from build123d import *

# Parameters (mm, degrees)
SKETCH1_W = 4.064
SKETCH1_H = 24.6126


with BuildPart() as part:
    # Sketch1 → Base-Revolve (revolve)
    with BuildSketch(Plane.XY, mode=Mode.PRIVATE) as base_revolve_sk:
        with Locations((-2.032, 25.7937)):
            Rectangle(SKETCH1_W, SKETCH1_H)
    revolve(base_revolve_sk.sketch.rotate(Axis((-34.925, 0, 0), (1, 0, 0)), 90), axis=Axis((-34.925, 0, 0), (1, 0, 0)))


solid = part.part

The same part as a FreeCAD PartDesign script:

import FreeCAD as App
import Part
import Sketcher
from FreeCAD import Vector
Q = App.Units.Quantity


def add_polygon(sketch, points):
    """Adds a closed chain of lines whose ends are joined by coincident constraints."""
    first, n = sketch.GeometryCount, len(points)
    for a, b in zip(points, points[1:] + points[:1]):
        sketch.addGeometry(Part.LineSegment(App.Vector(*a, 0), App.Vector(*b, 0)), False)
    for i in range(n):
        sketch.addConstraint(Sketcher.Constraint("Coincident", first + i, 2, first + (i + 1) % n, 1))

doc = App.newDocument("Part")
body = doc.addObject("PartDesign::Body", "Body")

sketch1 = body.newObject("Sketcher::SketchObject", "Sketch")
sketch1.AttachmentSupport = (doc.getObject("XY_Plane"), [""])
sketch1.MapMode = "FlatFace"
add_polygon(sketch1, [(-4.064, 38.1), (-4.064, 13.4874), (0, 13.4874), (0, 38.1)])
sketch1.addConstraint([
    Sketcher.Constraint("Vertical", 0),
    Sketcher.Constraint("Horizontal", 1),
    Sketcher.Constraint("Vertical", 2),
    Sketcher.Constraint("Horizontal", 3),
    Sketcher.Constraint("PointOnObject", 1, 2, -2),
    Sketcher.Constraint("DistanceX", 1, 1, 1, 2, Q("0.16 in")),
    Sketcher.Constraint("DistanceY", -1, 1, 2, 2, Q("1.5 in")),
    Sketcher.Constraint("DistanceY", 0, 2, 0, 1, Q("0.969 in")),
])
revolution = body.newObject("PartDesign::Revolution", "Revolution")
revolution.Profile = sketch1
revolution.ReferenceAxis = (sketch1, ["H_Axis"])
revolution.Angle = 360

doc.recompute()
